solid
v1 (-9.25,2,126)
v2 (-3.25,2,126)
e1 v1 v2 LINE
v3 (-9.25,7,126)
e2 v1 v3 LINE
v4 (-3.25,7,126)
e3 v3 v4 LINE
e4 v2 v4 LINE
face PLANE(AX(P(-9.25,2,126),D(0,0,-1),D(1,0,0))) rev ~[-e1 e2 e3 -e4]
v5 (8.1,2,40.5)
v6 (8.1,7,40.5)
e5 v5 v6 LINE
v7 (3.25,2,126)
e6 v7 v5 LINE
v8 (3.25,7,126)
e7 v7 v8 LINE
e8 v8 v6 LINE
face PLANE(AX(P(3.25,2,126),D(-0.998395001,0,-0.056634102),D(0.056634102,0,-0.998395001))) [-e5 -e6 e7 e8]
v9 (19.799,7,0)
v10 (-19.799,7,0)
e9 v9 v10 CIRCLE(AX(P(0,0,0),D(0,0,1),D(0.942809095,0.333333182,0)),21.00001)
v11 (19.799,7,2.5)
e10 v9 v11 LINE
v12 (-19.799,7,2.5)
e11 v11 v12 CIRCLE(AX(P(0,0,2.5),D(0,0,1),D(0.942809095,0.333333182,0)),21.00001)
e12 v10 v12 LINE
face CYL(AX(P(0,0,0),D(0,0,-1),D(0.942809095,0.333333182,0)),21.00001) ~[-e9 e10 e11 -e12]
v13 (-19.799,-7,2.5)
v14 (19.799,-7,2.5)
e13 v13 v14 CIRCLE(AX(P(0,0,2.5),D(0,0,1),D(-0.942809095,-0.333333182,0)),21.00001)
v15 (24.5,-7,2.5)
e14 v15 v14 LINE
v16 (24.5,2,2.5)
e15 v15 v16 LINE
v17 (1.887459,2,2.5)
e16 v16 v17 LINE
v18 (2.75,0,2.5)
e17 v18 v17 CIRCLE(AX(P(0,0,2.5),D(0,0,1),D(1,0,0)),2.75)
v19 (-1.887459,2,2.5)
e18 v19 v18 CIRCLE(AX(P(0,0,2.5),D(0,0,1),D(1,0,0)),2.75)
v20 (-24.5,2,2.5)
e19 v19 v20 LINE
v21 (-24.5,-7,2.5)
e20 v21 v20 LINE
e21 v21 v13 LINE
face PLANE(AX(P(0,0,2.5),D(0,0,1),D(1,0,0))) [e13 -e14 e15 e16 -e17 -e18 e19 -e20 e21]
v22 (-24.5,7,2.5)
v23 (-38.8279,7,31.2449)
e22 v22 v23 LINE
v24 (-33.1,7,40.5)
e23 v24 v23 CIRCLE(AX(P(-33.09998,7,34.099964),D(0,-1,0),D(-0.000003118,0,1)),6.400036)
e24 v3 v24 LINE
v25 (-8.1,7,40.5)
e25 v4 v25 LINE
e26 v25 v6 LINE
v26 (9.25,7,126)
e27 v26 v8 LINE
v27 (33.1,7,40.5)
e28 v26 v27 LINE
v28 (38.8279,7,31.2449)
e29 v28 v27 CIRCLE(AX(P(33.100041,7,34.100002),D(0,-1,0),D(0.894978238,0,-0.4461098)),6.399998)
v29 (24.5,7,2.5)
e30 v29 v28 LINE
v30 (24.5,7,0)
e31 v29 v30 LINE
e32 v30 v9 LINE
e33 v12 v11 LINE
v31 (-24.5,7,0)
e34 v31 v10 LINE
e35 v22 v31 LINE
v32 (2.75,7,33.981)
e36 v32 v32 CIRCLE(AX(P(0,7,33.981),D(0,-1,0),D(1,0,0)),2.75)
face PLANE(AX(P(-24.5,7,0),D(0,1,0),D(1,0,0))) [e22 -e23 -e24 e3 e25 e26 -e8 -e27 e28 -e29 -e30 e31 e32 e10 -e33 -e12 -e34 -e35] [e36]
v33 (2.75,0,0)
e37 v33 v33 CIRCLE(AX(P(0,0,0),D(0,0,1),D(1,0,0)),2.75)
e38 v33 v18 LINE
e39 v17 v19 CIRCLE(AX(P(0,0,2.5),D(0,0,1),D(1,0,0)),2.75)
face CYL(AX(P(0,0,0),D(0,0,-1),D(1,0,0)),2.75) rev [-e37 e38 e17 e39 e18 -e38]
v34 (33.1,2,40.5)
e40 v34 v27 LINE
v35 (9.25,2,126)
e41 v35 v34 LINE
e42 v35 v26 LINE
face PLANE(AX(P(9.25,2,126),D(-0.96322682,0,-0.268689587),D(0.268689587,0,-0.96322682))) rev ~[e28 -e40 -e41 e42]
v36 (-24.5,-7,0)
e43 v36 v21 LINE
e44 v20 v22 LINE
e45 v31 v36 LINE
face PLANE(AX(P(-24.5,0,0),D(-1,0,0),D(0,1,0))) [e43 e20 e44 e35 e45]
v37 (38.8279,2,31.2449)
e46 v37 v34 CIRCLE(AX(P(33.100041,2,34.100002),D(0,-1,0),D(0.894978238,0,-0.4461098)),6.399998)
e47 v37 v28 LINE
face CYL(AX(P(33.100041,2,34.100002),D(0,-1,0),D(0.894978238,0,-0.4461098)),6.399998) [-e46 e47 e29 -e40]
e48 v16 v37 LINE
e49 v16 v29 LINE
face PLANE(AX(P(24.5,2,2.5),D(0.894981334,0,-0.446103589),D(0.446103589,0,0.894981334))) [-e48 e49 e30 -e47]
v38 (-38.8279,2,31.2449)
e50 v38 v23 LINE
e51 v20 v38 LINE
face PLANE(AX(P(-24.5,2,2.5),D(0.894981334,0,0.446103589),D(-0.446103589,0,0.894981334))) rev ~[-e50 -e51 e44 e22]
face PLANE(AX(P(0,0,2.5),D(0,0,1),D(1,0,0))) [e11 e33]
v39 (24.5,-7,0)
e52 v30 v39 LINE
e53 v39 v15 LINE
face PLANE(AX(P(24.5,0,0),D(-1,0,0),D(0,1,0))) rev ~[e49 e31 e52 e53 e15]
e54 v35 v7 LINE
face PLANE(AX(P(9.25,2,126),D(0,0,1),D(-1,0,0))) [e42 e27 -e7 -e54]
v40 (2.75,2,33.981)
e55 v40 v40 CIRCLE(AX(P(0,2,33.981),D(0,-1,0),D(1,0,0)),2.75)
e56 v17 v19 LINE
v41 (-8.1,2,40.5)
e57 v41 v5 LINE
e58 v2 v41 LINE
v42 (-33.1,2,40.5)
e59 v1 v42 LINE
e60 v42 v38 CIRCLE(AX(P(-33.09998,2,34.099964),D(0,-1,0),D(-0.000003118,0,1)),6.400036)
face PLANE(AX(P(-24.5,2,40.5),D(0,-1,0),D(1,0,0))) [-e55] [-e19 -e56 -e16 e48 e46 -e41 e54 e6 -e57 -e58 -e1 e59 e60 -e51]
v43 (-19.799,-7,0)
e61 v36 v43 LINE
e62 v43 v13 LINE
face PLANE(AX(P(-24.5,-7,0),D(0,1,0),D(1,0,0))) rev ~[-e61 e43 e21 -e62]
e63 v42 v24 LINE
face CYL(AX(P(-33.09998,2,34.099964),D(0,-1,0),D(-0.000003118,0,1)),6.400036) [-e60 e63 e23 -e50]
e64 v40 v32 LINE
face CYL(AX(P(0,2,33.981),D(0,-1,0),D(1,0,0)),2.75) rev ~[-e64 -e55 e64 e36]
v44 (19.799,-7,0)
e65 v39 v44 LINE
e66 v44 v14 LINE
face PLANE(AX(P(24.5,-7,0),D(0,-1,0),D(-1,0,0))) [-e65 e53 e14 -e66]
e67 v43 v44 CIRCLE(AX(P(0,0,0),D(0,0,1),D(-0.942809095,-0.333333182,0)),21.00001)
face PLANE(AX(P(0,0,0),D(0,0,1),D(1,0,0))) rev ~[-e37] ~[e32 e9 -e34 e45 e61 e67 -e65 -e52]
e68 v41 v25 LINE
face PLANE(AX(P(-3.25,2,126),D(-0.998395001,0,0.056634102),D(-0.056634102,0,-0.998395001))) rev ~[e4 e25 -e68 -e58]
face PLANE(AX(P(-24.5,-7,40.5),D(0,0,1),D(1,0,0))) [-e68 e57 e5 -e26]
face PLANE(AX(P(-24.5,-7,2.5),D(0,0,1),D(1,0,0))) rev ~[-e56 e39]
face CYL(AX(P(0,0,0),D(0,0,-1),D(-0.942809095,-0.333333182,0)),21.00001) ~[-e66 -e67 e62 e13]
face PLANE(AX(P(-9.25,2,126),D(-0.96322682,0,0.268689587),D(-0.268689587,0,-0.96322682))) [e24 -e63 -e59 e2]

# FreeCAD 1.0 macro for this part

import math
import FreeCAD as App
import Part
import Sketcher

V = App.Vector
Q = App.Units.Quantity

doc = App.newDocument("Part")
body = doc.addObject("PartDesign::Body", "Body")

# Sketch on XY plane
sketch1 = body.newObject("Sketcher::SketchObject", "Sketch")
sketch1.AttachmentSupport = (doc.getObject("XY_Plane"), [""])
sketch1.MapMode = "FlatFace"
sketch1.addGeometry(Part.LineSegment(V(-24.5, 7, 0), V(-24.5, -7, 0)), False)
sketch1.addGeometry(Part.LineSegment(V(-24.5, -7, 0), V(-19.799, -7, 0)), False)
sketch1.addGeometry(Part.ArcOfCircle(Part.Circle(V(0, 0, 0), V(0, 0, 1), 21.00001), math.radians(-160.528789), math.radians(-19.471211)), False)
sketch1.addGeometry(Part.LineSegment(V(19.799, -7, 0), V(24.5, -7, 0)), False)
sketch1.addGeometry(Part.LineSegment(V(24.5, -7, 0), V(24.5, 7, 0)), False)
sketch1.addGeometry(Part.LineSegment(V(24.5, 7, 0), V(19.799, 7, 0)), False)
sketch1.addGeometry(Part.ArcOfCircle(Part.Circle(V(0, 0, 0), V(0, 0, 1), 21.00001), math.radians(19.471211), math.radians(160.528789)), False)
sketch1.addGeometry(Part.LineSegment(V(-19.799, 7, 0), V(-24.5, 7, 0)), False)
sketch1.addGeometry(Part.Circle(V(0, 0, 0), V(0, 0, 1), 2.75), False)
sketch1.addConstraint(Sketcher.Constraint("Coincident", 0, 2, 1, 1))
sketch1.addConstraint(Sketcher.Constraint("Coincident", 1, 2, 2, 1))
sketch1.addConstraint(Sketcher.Constraint("Coincident", 2, 2, 3, 1))
sketch1.addConstraint(Sketcher.Constraint("Coincident", 3, 2, 4, 1))
sketch1.addConstraint(Sketcher.Constraint("Coincident", 4, 2, 5, 1))
sketch1.addConstraint(Sketcher.Constraint("Coincident", 5, 2, 6, 1))
sketch1.addConstraint(Sketcher.Constraint("Coincident", 6, 2, 7, 1))
sketch1.addConstraint(Sketcher.Constraint("Coincident", 7, 2, 0, 1))
sketch1.addConstraint(Sketcher.Constraint("Vertical", 0))
sketch1.addConstraint(Sketcher.Constraint("Horizontal", 1))
sketch1.addConstraint(Sketcher.Constraint("Horizontal", 3))
sketch1.addConstraint(Sketcher.Constraint("Vertical", 4))
sketch1.addConstraint(Sketcher.Constraint("Horizontal", 5))
sketch1.addConstraint(Sketcher.Constraint("Horizontal", 7))
sketch1.addConstraint(Sketcher.Constraint("Coincident", 2, 3, -1, 1))
sketch1.addConstraint(Sketcher.Constraint("Coincident", 6, 3, -1, 1))
sketch1.addConstraint(Sketcher.Constraint("Coincident", 8, 3, -1, 1))
sketch1.addConstraint(Sketcher.Constraint("Equal", 2, 6))
sketch1.addConstraint(Sketcher.Constraint("Symmetric", 0, 2, 4, 2, -1, 1))
sketch1.addConstraint(Sketcher.Constraint("Horizontal", 1, 2, 2, 2))
sketch1.addConstraint(Sketcher.Constraint("Horizontal", 5, 2, 6, 2))
sketch1.addConstraint(Sketcher.Constraint("Diameter", 8, Q("5.5 mm")))
sketch1.addConstraint(Sketcher.Constraint("Radius", 2, Q("21 mm")))
sketch1.addConstraint(Sketcher.Constraint("DistanceY", 0, 2, 0, 1, Q("14 mm")))
sketch1.addConstraint(Sketcher.Constraint("DistanceX", 0, 2, -1, 1, Q("24.5 mm")))
pad1 = body.newObject("PartDesign::Pad", "Pad")
pad1.Profile = sketch1
pad1.Length = 2.5

# Sketch on XY plane
sketch2 = body.newObject("Sketcher::SketchObject", "Sketch001")
sketch2.AttachmentSupport = (doc.getObject("XY_Plane"), [""])
sketch2.MapMode = "FlatFace"
sketch2.AttachmentOffset = App.Placement(V(0, 0, 2.5), App.Rotation())
sketch2.addGeometry(Part.LineSegment(V(24.5, 7, 0), V(-24.5, 7, 0)), False)
sketch2.addGeometry(Part.LineSegment(V(-24.5, 7, 0), V(-24.5, 2, 0)), False)
sketch2.addGeometry(Part.LineSegment(V(-24.5, 2, 0), V(24.5, 2, 0)), False)
sketch2.addGeometry(Part.LineSegment(V(24.5, 2, 0), V(24.5, 7, 0)), False)
sketch2.addConstraint(Sketcher.Constraint("Coincident", 0, 2, 1, 1))
sketch2.addConstraint(Sketcher.Constraint("Coincident", 1, 2, 2, 1))
sketch2.addConstraint(Sketcher.Constraint("Coincident", 2, 2, 3, 1))
sketch2.addConstraint(Sketcher.Constraint("Coincident", 3, 2, 0, 1))
sketch2.addConstraint(Sketcher.Constraint("Horizontal", 0))
sketch2.addConstraint(Sketcher.Constraint("Vertical", 1))
sketch2.addConstraint(Sketcher.Constraint("Horizontal", 2))
sketch2.addConstraint(Sketcher.Constraint("Vertical", 3))
sketch2.addConstraint(Sketcher.Constraint("DistanceY", 1, 2, 1, 1, Q("5 mm")))
sketch2.addConstraint(Sketcher.Constraint("DistanceX", 0, 2, 0, 1, Q("49 mm")))
sketch2.addConstraint(Sketcher.Constraint("DistanceY", -1, 1, 0, 2, Q("7 mm")))
sketch2.addConstraint(Sketcher.Constraint("DistanceX", 0, 2, -1, 1, Q("24.5 mm")))
pad2 = body.newObject("PartDesign::Pad", "Pad001")
pad2.Profile = sketch2
pad2.Length = 38

# Sketch on XZ plane
sketch3 = body.newObject("Sketcher::SketchObject", "Sketch002")
sketch3.AttachmentSupport = (doc.getObject("XZ_Plane"), [""])
sketch3.MapMode = "FlatFace"
sketch3.AttachmentOffset = App.Placement(V(0, 0, -2), App.Rotation())
sketch3.addGeometry(Part.LineSegment(V(33.1, 40.5, 0), V(24.5, 40.5, 0)), False)
sketch3.addGeometry(Part.LineSegment(V(24.5, 40.5, 0), V(24.5, 2.5, 0)), False)
sketch3.addGeometry(Part.LineSegment(V(24.5, 2.5, 0), V(38.8279, 31.2449, 0)), False)
sketch3.addGeometry(Part.ArcOfCircle(Part.Circle(V(33.1, 34.1, 0), V(0, 0, 1), 6.400034), math.radians(-26.494187), math.radians(90)), False)
sketch3.addGeometry(Part.LineSegment(V(-24.5, 40.5, 0), V(-33.1, 40.5, 0)), False)
sketch3.addGeometry(Part.ArcOfCircle(Part.Circle(V(-33.1, 34.1, 0), V(0, 0, 1), 6.4), math.radians(90), math.radians(206.494187)), False)
sketch3.addGeometry(Part.LineSegment(V(-38.8279, 31.2449, 0), V(-24.5, 2.5, 0)), False)
sketch3.addGeometry(Part.LineSegment(V(-24.5, 2.5, 0), V(-24.5, 40.5, 0)), False)
sketch3.addConstraint(Sketcher.Constraint("Coincident", 0, 2, 1, 1))
sketch3.addConstraint(Sketcher.Constraint("Coincident", 1, 2, 2, 1))
sketch3.addConstraint(Sketcher.Constraint("Tangent", 2, 2, 3, 1))
sketch3.addConstraint(Sketcher.Constraint("Tangent", 3, 2, 0, 1))
sketch3.addConstraint(Sketcher.Constraint("Tangent", 4, 2, 5, 1))
sketch3.addConstraint(Sketcher.Constraint("Tangent", 5, 2, 6, 1))
sketch3.addConstraint(Sketcher.Constraint("Coincident", 6, 2, 7, 1))
sketch3.addConstraint(Sketcher.Constraint("Coincident", 7, 2, 4, 1))
sketch3.addConstraint(Sketcher.Constraint("Horizontal", 0))
sketch3.addConstraint(Sketcher.Constraint("Vertical", 1))
sketch3.addConstraint(Sketcher.Constraint("Horizontal", 4))
sketch3.addConstraint(Sketcher.Constraint("Vertical", 7))
sketch3.addConstraint(Sketcher.Constraint("Equal", 3, 5))
sketch3.addConstraint(Sketcher.Constraint("Symmetric", 3, 3, 5, 3, -2))
sketch3.addConstraint(Sketcher.Constraint("Symmetric", 1, 2, 6, 2, -2))
sketch3.addConstraint(Sketcher.Constraint("Radius", 3, Q("6.4 mm")))
sketch3.addConstraint(Sketcher.Constraint("DistanceY", 1, 2, 1, 1, Q("38 mm")))
sketch3.addConstraint(Sketcher.Constraint("DistanceX", 0, 2, 0, 1, Q("8.6 mm")))
sketch3.addConstraint(Sketcher.Constraint("DistanceX", 6, 2, 1, 2, Q("49 mm")))
sketch3.addConstraint(Sketcher.Constraint("DistanceY", -1, 1, 3, 3, Q("34.1 mm")))
pad3 = body.newObject("PartDesign::Pad", "Pad002")
pad3.Profile = sketch3
pad3.Length = 5
pad3.Reversed = True

# Sketch on XZ plane
sketch4 = body.newObject("Sketcher::SketchObject", "Sketch003")
sketch4.AttachmentSupport = (doc.getObject("XZ_Plane"), [""])
sketch4.MapMode = "FlatFace"
sketch4.AttachmentOffset = App.Placement(V(0, 0, -2), App.Rotation())
sketch4.addGeometry(Part.LineSegment(V(-3.25, 126, 0), V(-9.25, 126, 0)), False)
sketch4.addGeometry(Part.LineSegment(V(-9.25, 126, 0), V(-33.1, 40.5, 0)), False)
sketch4.addGeometry(Part.LineSegment(V(-33.1, 40.5, 0), V(-8.1, 40.5, 0)), False)
sketch4.addGeometry(Part.LineSegment(V(-8.1, 40.5, 0), V(-3.25, 126, 0)), False)
sketch4.addGeometry(Part.LineSegment(V(33.1, 40.5, 0), V(9.25, 126, 0)), False)
sketch4.addGeometry(Part.LineSegment(V(9.25, 126, 0), V(3.25, 126, 0)), False)
sketch4.addGeometry(Part.LineSegment(V(3.25, 126, 0), V(8.1, 40.5, 0)), False)
sketch4.addGeometry(Part.LineSegment(V(8.1, 40.5, 0), V(33.1, 40.5, 0)), False)
sketch4.addConstraint(Sketcher.Constraint("Coincident", 0, 2, 1, 1))
sketch4.addConstraint(Sketcher.Constraint("Coincident", 1, 2, 2, 1))
sketch4.addConstraint(Sketcher.Constraint("Coincident", 2, 2, 3, 1))
sketch4.addConstraint(Sketcher.Constraint("Coincident", 3, 2, 0, 1))
sketch4.addConstraint(Sketcher.Constraint("Coincident", 4, 2, 5, 1))
sketch4.addConstraint(Sketcher.Constraint("Coincident", 5, 2, 6, 1))
sketch4.addConstraint(Sketcher.Constraint("Coincident", 6, 2, 7, 1))
sketch4.addConstraint(Sketcher.Constraint("Coincident", 7, 2, 4, 1))
sketch4.addConstraint(Sketcher.Constraint("Horizontal", 0))
sketch4.addConstraint(Sketcher.Constraint("Horizontal", 2))
sketch4.addConstraint(Sketcher.Constraint("Horizontal", 5))
sketch4.addConstraint(Sketcher.Constraint("Horizontal", 7))
sketch4.addConstraint(Sketcher.Constraint("Symmetric", 0, 2, 4, 2, -2))
sketch4.addConstraint(Sketcher.Constraint("Symmetric", 2, 2, 6, 2, -2))
sketch4.addConstraint(Sketcher.Constraint("Equal", 0, 5))
sketch4.addConstraint(Sketcher.Constraint("Equal", 2, 7))
sketch4.addConstraint(Sketcher.Constraint("DistanceX", 0, 2, 0, 1, Q("6 mm")))
sketch4.addConstraint(Sketcher.Constraint("DistanceX", 2, 1, 2, 2, Q("25 mm")))
sketch4.addConstraint(Sketcher.Constraint("DistanceY", -1, 1, 0, 2, Q("126 mm")))
sketch4.addConstraint(Sketcher.Constraint("DistanceX", 1, 2, -1, 1, Q("33.1 mm")))
sketch4.addConstraint(Sketcher.Constraint("DistanceY", -1, 1, 1, 2, Q("40.5 mm")))
sketch4.addConstraint(Sketcher.Constraint("DistanceX", 3, 2, 4, 2, Q("12.5 mm")))
pad4 = body.newObject("PartDesign::Pad", "Pad003")
pad4.Profile = sketch4
pad4.Length = 5
pad4.Reversed = True

# Sketch on XZ plane
sketch5 = body.newObject("Sketcher::SketchObject", "Sketch004")
sketch5.AttachmentSupport = (doc.getObject("XZ_Plane"), [""])
sketch5.MapMode = "FlatFace"
sketch5.AttachmentOffset = App.Placement(V(0, 0, -2), App.Rotation())
sketch5.addGeometry(Part.Circle(V(0, 33.981, 0), V(0, 0, 1), 2.75), False)
sketch5.addConstraint(Sketcher.Constraint("PointOnObject", 0, 3, -2))
sketch5.addConstraint(Sketcher.Constraint("Diameter", 0, Q("5.5 mm")))
sketch5.addConstraint(Sketcher.Constraint("DistanceY", -1, 1, 0, 3, Q("33.981 mm")))
pocket1 = body.newObject("PartDesign::Pocket", "Pocket")
pocket1.Profile = sketch5
pocket1.Length = 5

doc.recompute()
